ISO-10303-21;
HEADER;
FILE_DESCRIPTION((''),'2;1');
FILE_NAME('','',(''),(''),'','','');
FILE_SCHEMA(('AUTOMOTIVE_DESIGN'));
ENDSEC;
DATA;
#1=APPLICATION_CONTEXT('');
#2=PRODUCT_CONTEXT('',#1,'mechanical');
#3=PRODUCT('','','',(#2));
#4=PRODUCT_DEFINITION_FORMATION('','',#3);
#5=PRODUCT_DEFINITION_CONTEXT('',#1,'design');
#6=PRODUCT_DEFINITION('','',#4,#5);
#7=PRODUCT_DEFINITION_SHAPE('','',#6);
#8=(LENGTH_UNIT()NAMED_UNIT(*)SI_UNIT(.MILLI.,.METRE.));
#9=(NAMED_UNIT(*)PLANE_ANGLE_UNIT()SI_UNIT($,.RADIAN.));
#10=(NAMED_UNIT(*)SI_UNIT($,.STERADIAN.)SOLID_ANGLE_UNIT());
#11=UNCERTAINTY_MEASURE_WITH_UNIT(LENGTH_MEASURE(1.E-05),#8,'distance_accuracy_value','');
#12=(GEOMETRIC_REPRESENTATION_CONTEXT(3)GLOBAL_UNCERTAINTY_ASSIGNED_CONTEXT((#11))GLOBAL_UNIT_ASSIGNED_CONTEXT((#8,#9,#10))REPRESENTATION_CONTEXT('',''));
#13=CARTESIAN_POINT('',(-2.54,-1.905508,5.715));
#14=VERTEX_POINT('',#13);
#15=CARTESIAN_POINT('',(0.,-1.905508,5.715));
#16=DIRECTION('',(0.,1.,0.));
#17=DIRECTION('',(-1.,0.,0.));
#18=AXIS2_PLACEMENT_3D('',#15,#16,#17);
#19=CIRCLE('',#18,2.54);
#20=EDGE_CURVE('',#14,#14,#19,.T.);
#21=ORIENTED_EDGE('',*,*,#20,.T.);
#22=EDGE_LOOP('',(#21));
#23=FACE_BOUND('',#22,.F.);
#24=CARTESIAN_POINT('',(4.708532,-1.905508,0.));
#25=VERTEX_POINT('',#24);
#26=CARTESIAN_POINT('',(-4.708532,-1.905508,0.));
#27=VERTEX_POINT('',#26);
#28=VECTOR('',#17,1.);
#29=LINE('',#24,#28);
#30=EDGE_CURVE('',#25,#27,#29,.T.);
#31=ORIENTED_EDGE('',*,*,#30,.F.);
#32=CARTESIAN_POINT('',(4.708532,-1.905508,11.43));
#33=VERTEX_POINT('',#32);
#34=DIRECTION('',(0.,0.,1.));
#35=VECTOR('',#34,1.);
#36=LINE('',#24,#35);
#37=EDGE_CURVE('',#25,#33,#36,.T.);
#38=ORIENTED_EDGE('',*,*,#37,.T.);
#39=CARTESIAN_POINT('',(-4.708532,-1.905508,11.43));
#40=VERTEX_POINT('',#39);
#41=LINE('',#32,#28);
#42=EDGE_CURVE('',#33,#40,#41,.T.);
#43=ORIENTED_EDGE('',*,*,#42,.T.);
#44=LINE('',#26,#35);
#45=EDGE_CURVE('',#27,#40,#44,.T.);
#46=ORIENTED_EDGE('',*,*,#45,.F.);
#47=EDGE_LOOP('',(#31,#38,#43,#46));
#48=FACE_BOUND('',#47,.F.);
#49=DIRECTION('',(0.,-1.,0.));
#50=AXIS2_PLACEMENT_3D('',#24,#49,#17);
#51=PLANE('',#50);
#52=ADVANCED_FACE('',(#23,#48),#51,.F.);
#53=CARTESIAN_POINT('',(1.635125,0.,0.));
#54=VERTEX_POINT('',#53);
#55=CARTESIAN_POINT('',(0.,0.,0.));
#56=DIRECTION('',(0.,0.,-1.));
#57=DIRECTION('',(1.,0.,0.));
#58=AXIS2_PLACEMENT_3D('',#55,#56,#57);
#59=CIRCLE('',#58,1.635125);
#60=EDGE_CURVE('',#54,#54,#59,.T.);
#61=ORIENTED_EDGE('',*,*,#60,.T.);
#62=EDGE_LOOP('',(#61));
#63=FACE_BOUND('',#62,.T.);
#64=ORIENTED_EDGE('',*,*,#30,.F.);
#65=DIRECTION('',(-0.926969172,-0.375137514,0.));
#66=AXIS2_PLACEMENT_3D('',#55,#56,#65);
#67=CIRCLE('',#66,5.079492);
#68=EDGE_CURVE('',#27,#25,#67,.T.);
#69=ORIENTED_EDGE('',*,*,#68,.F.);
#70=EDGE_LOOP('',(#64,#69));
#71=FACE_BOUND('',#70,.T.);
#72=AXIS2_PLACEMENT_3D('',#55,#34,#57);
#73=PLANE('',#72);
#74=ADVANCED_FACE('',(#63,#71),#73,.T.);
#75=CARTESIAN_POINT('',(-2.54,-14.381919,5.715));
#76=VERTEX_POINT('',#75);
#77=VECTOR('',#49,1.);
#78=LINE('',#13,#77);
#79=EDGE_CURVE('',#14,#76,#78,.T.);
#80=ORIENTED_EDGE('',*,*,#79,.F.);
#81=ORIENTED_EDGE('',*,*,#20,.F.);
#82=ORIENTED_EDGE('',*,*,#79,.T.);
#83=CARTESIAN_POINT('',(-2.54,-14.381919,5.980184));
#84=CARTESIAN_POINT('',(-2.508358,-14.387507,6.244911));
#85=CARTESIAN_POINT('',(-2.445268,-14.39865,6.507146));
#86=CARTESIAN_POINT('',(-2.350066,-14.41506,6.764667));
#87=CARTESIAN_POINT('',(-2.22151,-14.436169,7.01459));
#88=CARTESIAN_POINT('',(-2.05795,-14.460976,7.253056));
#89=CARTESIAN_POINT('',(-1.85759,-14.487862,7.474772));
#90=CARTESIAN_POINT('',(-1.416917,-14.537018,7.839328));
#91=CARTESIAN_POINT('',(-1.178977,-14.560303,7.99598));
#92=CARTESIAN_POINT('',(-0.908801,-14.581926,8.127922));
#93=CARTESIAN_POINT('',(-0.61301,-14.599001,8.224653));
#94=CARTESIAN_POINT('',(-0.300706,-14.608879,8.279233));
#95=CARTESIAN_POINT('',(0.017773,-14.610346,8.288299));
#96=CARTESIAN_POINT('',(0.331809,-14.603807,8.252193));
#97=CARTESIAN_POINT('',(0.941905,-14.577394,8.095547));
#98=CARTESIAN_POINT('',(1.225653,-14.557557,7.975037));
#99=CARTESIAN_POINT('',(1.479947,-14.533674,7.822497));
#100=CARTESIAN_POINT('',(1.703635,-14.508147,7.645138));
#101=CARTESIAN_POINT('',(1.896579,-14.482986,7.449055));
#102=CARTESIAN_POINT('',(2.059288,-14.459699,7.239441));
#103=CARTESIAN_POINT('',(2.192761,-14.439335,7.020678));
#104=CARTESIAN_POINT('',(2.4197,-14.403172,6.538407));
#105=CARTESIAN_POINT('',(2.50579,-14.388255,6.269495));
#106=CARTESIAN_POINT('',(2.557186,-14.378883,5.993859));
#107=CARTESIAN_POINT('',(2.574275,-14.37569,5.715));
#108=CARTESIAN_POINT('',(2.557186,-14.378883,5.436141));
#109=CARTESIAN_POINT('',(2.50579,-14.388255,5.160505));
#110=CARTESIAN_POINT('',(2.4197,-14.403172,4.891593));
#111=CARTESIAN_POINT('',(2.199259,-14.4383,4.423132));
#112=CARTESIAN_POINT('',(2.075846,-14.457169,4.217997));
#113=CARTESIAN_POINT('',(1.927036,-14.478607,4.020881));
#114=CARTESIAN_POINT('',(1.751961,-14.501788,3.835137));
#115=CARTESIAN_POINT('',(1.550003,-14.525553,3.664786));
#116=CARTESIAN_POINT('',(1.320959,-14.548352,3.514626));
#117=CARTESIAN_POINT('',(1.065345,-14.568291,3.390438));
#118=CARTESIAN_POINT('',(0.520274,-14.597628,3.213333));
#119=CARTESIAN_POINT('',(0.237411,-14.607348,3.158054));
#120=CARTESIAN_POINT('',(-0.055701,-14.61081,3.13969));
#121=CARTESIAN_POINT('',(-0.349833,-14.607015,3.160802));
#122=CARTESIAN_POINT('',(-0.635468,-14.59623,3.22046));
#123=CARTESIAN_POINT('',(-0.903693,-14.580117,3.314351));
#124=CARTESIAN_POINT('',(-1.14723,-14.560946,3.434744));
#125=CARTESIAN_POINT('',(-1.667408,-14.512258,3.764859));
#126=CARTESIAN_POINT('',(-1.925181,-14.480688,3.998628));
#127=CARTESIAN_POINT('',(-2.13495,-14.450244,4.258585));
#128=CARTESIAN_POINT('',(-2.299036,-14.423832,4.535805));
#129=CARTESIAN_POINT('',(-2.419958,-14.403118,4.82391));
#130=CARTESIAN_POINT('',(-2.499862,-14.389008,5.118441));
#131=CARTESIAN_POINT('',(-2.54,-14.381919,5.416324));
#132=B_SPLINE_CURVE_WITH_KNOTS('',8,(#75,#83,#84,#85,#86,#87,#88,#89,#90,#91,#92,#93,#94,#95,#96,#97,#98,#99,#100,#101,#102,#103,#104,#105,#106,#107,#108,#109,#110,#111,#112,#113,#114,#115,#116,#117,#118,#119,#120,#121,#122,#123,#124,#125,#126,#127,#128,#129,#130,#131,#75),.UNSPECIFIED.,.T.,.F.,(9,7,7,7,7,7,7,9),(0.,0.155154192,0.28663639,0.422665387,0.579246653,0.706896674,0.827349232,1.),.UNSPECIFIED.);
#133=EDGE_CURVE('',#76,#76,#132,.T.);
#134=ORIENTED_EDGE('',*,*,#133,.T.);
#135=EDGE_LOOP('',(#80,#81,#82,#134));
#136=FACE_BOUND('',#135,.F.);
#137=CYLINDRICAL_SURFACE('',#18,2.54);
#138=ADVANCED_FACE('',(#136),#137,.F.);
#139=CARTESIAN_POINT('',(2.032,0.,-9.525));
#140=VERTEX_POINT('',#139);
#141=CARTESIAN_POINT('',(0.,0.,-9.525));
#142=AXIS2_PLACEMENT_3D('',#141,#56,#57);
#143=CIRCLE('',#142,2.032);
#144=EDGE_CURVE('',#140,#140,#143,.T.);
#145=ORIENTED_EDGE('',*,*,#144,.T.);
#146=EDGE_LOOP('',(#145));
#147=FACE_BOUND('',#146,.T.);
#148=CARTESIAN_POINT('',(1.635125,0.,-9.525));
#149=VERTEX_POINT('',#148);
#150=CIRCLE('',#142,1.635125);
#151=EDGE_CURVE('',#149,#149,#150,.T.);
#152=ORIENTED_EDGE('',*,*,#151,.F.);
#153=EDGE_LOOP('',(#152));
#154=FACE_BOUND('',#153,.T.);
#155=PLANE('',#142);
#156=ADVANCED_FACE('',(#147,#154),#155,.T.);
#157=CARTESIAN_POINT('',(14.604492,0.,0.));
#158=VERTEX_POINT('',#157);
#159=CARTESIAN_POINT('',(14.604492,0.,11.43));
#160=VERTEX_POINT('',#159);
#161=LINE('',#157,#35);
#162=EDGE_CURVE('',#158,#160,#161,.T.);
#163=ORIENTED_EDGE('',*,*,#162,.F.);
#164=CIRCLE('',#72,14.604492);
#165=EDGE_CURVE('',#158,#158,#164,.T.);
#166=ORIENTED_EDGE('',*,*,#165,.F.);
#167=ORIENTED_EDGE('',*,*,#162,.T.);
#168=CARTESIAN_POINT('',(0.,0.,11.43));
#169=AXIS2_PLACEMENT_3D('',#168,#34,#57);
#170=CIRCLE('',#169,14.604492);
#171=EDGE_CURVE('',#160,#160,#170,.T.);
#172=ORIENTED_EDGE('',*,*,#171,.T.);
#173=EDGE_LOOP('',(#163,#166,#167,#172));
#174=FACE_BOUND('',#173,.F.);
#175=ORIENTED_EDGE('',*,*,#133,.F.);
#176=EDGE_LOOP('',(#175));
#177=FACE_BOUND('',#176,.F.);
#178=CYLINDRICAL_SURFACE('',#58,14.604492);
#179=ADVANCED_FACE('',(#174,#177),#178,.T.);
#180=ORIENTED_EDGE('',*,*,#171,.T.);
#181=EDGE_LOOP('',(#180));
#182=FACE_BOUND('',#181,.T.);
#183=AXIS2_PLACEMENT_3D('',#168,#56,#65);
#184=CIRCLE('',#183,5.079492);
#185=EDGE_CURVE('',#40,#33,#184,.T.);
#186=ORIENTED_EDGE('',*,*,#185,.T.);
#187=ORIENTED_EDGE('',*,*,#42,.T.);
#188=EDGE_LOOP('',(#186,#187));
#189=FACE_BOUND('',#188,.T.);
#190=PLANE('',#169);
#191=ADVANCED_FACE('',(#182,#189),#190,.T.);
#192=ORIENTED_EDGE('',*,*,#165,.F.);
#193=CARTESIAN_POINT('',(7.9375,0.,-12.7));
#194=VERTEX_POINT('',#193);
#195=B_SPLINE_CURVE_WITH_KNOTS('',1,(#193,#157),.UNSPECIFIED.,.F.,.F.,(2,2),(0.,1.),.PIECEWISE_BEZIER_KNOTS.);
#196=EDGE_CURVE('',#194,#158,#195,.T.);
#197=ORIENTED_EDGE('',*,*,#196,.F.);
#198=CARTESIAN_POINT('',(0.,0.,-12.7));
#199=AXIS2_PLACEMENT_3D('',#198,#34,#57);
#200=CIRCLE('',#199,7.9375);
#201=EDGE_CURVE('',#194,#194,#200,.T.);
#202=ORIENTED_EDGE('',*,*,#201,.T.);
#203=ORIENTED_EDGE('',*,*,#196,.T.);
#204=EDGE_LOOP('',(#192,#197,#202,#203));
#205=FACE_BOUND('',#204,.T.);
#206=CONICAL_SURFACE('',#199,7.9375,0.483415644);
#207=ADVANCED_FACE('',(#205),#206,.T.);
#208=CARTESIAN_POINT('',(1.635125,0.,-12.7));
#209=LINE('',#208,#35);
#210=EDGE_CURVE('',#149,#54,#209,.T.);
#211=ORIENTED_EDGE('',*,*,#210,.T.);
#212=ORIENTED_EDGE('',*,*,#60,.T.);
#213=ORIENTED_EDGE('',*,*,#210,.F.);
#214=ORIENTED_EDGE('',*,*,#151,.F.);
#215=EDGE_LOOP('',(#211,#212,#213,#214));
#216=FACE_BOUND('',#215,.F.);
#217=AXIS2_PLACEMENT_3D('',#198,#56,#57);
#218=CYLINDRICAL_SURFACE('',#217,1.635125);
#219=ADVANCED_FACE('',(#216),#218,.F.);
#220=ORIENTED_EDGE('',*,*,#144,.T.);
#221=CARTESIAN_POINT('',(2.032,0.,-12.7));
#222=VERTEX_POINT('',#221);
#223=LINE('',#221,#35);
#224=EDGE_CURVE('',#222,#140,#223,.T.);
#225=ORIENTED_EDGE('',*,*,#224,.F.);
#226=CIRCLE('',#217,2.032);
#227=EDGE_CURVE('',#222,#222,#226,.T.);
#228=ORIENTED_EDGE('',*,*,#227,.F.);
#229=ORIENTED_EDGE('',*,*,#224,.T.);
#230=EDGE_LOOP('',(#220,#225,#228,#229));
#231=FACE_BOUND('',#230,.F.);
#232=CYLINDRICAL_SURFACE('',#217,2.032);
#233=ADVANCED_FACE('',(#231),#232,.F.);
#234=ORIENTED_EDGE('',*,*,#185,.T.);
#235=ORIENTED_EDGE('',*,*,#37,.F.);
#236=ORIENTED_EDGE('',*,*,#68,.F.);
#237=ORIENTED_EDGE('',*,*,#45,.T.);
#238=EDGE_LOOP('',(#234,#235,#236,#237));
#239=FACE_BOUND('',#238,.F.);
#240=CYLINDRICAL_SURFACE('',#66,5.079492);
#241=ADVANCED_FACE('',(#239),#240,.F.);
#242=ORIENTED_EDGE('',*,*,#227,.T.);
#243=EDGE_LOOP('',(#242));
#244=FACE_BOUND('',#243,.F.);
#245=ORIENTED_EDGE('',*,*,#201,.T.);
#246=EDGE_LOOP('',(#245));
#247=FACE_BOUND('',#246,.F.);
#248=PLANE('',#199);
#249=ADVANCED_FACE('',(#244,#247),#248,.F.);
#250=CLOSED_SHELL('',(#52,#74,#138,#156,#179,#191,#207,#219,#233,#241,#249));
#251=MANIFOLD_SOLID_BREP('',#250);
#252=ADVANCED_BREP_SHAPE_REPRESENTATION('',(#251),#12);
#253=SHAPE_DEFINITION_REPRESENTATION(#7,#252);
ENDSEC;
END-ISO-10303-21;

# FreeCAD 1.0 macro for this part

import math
import FreeCAD as App
import Part
import Sketcher
Q = App.Units.Quantity

doc = App.newDocument("Part")
body = doc.addObject("PartDesign::Body", "Body")

sketch1 = body.newObject("Sketcher::SketchObject", "Sketch")
sketch1.AttachmentSupport = (doc.getObject("XY_Plane"), [""])
sketch1.MapMode = "FlatFace"
sketch1.addGeometry([
    Part.Circle(App.Vector(0, 0, 0), App.Vector(0, 0, 1), 15),
    Part.LineSegment(App.Vector(5, -2, 0), App.Vector(-5, -2, 0)),
    Part.ArcOfCircle(Part.Circle(App.Vector(0, 0, 0), App.Vector(0, 0, 1), 5), math.radians(-22), math.radians(202)),
], False)
sketch1.addConstraint([
    Sketcher.Constraint("Coincident", 1, 1, 2, 1),
    Sketcher.Constraint("Coincident", 2, 2, 1, 2),
    Sketcher.Constraint("Horizontal", 1),
    Sketcher.Constraint("Coincident", 0, 3, -1, 1),
    Sketcher.Constraint("Coincident", 2, 3, -1, 1),
    Sketcher.Constraint("Diameter", 0, 29.208984),
    Sketcher.Constraint("Radius", 2, 5.079492),
    Sketcher.Constraint("DistanceX", 1, 2, 1, 1, 9.417065),
])
pad1 = body.newObject("PartDesign::Pad", "Pad")
pad1.Profile = sketch1
pad1.Length = Q("0.45 in")

sketch2 = body.newObject("Sketcher::SketchObject", "Sketch001")
sketch2.AttachmentSupport = (doc.getObject("XZ_Plane"), [""])
sketch2.MapMode = "FlatFace"
sketch2.AttachmentOffset = App.Placement(App.Vector(0, 0, 1.905508), App.Rotation())
sketch2.addGeometry(Part.Circle(App.Vector(0, 5.7, 0), App.Vector(0, 0, 1), 2.5), False)
sketch2.addConstraint([
    Sketcher.Constraint("PointOnObject", 0, 3, -2),
    Sketcher.Constraint("Diameter", 0, Q("0.2 in")),
    Sketcher.Constraint("DistanceY", -1, 1, 0, 3, Q("0.225 in")),
])
pocket1 = body.newObject("PartDesign::Pocket", "Pocket")
pocket1.Profile = sketch2
pocket1.Length = 13.698984
pocket1.Reversed = True

sketch3 = body.newObject("Sketcher::SketchObject", "Sketch002")
sketch3.AttachmentSupport = (doc.getObject("XY_Plane"), [""])
sketch3.MapMode = "FlatFace"
sketch3.AttachmentOffset = App.Placement(App.Vector(0, 0, -0.5 * 25.4), App.Rotation())
sketch3.addGeometry(Part.Circle(App.Vector(0, 0, 0), App.Vector(0, 0, 1), 8), False)
sketch3.addConstraint([
    Sketcher.Constraint("Coincident", 0, 3, -1, 1),
    Sketcher.Constraint("Diameter", 0, Q("0.625 in")),
])

sketch4 = body.newObject("Sketcher::SketchObject", "Sketch003")
sketch4.AttachmentSupport = (doc.getObject("XY_Plane"), [""])
sketch4.MapMode = "FlatFace"
sketch4.addGeometry(Part.Circle(App.Vector(0, 0, 0), App.Vector(0, 0, 1), 15), False)
sketch4.addConstraint([
    Sketcher.Constraint("Coincident", 0, 3, -1, 1),
    Sketcher.Constraint("Diameter", 0, 29.208984),
])

additiveloft = body.newObject("PartDesign::AdditiveLoft", "AdditiveLoft")
additiveloft.Profile = sketch3
additiveloft.Sections = [sketch4]

sketch5 = body.newObject("Sketcher::SketchObject", "Sketch004")
sketch5.AttachmentSupport = (doc.getObject("XY_Plane"), [""])
sketch5.MapMode = "FlatFace"
sketch5.AttachmentOffset = App.Placement(App.Vector(0, 0, -0.5 * 25.4), App.Rotation())
sketch5.addGeometry(Part.Circle(App.Vector(0, 0, 0), App.Vector(0, 0, 1), 1.6), False)
sketch5.addConstraint([
    Sketcher.Constraint("Coincident", 0, 3, -1, 1),
    Sketcher.Constraint("Diameter", 0, 3.27025),
])
pocket2 = body.newObject("PartDesign::Pocket", "Pocket001")
pocket2.Profile = sketch5
pocket2.Length = Q("1 in")
pocket2.Reversed = True

sketch6 = body.newObject("Sketcher::SketchObject", "Sketch005")
sketch6.AttachmentSupport = (doc.getObject("XY_Plane"), [""])
sketch6.MapMode = "FlatFace"
sketch6.AttachmentOffset = App.Placement(App.Vector(0, 0, -0.5 * 25.4), App.Rotation())
sketch6.addGeometry([
    Part.Circle(App.Vector(0, 0, 0), App.Vector(0, 0, 1), 2),
    Part.Circle(App.Vector(0, 0, 0), App.Vector(0, 0, 1), 1.6),
], False)
sketch6.addConstraint([
    Sketcher.Constraint("Coincident", 0, 3, -1, 1),
    Sketcher.Constraint("Coincident", 1, 3, -1, 1),
    Sketcher.Constraint("Diameter", 0, Q("0.16 in")),
    Sketcher.Constraint("Diameter", 1, 3.27025),
])
pocket3 = body.newObject("PartDesign::Pocket", "Pocket002")
pocket3.Profile = sketch6
pocket3.Length = Q("0.125 in")
pocket3.Reversed = True

doc.recompute()
